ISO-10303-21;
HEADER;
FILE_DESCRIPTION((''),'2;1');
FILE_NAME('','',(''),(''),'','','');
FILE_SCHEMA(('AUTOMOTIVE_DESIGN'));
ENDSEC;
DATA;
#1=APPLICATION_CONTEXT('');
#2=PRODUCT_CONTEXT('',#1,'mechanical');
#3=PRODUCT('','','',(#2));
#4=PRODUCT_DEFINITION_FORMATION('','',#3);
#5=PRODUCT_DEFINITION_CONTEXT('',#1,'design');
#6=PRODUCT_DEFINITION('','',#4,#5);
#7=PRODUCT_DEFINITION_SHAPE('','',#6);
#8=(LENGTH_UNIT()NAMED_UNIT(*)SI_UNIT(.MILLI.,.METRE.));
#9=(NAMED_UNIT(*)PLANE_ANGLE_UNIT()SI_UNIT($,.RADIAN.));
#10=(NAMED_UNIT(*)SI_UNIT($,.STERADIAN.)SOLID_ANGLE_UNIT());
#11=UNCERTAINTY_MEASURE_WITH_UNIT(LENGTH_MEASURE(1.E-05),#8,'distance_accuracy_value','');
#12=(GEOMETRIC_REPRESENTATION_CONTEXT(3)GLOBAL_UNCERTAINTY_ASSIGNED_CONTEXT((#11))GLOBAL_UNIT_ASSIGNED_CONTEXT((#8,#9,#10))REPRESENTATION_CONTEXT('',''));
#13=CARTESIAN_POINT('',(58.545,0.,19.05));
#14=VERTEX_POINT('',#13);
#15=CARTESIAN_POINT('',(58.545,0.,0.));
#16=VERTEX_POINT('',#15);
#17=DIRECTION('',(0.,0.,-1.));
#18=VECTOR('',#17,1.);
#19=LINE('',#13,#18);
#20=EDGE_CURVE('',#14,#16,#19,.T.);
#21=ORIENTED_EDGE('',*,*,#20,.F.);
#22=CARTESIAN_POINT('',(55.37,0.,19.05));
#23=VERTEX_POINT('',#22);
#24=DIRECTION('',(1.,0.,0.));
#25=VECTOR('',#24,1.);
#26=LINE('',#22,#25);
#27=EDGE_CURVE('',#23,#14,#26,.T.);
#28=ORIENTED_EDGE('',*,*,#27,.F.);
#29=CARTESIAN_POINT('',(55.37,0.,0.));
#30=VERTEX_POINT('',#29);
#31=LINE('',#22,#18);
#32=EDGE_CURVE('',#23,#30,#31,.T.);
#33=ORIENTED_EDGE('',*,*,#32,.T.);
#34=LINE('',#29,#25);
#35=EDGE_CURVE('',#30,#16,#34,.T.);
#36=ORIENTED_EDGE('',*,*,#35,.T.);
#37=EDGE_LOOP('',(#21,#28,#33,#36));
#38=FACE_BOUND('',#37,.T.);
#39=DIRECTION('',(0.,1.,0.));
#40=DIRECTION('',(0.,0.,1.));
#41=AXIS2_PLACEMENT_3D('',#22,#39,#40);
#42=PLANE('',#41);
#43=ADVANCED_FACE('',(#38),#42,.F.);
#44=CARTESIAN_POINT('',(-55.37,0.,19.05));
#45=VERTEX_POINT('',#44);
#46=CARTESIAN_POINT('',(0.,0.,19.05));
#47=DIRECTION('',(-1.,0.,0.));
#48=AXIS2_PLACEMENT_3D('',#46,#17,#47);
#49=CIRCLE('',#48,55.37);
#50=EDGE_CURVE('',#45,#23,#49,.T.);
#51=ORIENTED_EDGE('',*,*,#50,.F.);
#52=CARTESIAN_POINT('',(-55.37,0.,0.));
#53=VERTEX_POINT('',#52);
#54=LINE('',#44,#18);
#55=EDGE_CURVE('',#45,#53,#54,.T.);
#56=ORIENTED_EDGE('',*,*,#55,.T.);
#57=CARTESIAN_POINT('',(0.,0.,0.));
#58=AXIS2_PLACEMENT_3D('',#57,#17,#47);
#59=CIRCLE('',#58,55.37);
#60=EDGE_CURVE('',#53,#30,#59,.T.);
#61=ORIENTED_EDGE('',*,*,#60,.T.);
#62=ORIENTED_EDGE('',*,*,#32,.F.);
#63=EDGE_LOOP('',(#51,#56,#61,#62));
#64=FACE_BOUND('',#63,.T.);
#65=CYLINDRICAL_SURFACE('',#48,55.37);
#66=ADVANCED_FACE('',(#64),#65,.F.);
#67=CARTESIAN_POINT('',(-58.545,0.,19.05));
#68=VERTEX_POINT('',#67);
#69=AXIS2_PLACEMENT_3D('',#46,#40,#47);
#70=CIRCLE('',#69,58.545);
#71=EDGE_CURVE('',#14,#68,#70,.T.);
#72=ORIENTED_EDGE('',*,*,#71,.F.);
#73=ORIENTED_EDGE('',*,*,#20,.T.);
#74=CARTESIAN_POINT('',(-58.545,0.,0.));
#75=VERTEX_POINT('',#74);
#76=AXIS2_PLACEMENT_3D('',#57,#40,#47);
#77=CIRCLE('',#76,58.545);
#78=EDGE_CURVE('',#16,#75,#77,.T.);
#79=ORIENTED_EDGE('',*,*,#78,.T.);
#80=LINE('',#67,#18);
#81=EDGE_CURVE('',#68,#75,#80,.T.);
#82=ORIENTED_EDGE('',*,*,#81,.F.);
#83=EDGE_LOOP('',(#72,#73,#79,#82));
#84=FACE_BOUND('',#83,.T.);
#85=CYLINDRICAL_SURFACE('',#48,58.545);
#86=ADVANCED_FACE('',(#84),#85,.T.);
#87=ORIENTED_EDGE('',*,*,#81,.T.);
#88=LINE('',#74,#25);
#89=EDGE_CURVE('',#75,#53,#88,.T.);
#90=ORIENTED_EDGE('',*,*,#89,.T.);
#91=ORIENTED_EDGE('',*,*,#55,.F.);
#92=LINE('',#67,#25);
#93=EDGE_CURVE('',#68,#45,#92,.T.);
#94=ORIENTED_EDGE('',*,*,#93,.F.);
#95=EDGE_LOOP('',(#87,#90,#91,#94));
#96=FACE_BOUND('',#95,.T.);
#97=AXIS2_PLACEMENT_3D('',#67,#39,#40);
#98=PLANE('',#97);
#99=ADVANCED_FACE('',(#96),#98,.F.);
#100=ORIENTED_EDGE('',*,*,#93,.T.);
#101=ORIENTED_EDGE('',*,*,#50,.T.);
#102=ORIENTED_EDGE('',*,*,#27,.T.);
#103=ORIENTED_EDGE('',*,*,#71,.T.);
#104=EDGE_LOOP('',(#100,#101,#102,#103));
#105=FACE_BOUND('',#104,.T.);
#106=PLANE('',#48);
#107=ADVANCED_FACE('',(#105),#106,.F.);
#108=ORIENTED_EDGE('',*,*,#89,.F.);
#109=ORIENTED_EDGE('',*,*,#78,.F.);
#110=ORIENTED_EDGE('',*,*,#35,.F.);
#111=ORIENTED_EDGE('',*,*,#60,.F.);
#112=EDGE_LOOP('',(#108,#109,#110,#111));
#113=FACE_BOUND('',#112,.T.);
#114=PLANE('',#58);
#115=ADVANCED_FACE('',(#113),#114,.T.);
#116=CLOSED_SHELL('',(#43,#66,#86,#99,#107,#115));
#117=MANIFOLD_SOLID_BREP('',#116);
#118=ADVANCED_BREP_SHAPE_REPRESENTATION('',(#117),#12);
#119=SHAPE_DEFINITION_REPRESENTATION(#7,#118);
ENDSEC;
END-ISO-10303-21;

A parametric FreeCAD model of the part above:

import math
import FreeCAD as App
import Part
import Sketcher
Q = App.Units.Quantity

doc = App.newDocument("Part")
body = doc.addObject("PartDesign::Body", "Body")

# Sketch on XY plane
sketch1 = doc.addObject("Sketcher::SketchObject", "Sketch")
body.addObject(sketch1)
sketch1.AttachmentSupport = (doc.XY_Plane, [""])
sketch1.MapMode = "FlatFace"
sketch1.addGeometry([
    Part.LineSegment(App.Vector(-58.5, 0, 0), App.Vector(-55.4, 0, 0)),
    Part.ArcOfCircle(Part.Circle(App.Vector(0, 0, 0), App.Vector(0, 0, 1), 55.4), math.radians(0), math.radians(180)),
    Part.LineSegment(App.Vector(55.4, 0, 0), App.Vector(58.5, 0, 0)),
    Part.ArcOfCircle(Part.Circle(App.Vector(0, 0, 0), App.Vector(0, 0, 1), 58.5), math.radians(0), math.radians(180)),
], False)
sketch1.addConstraint([
    Sketcher.Constraint("Coincident", 0, 2, 1, 2),
    Sketcher.Constraint("Coincident", 1, 1, 2, 1),
    Sketcher.Constraint("Coincident", 2, 2, 3, 1),
    Sketcher.Constraint("Coincident", 3, 2, 0, 1),
    Sketcher.Constraint("Horizontal", 0),
    Sketcher.Constraint("Horizontal", 2),
    Sketcher.Constraint("Coincident", 1, 3, -1, 1),
    Sketcher.Constraint("Coincident", 3, 3, -1, 1),
    Sketcher.Constraint("PointOnObject", 0, 2, -1),
    Sketcher.Constraint("PointOnObject", 1, 1, -1),
    Sketcher.Constraint("DistanceX", 0, 1, 0, 2, Q("0.125 in")),
    Sketcher.Constraint("Radius", 1, 55.37),
])
pad1 = doc.addObject("PartDesign::Pad", "Pad")
body.addObject(pad1)
pad1.Profile = sketch1
pad1.Length = Q("0.75 in")

doc.recompute()
